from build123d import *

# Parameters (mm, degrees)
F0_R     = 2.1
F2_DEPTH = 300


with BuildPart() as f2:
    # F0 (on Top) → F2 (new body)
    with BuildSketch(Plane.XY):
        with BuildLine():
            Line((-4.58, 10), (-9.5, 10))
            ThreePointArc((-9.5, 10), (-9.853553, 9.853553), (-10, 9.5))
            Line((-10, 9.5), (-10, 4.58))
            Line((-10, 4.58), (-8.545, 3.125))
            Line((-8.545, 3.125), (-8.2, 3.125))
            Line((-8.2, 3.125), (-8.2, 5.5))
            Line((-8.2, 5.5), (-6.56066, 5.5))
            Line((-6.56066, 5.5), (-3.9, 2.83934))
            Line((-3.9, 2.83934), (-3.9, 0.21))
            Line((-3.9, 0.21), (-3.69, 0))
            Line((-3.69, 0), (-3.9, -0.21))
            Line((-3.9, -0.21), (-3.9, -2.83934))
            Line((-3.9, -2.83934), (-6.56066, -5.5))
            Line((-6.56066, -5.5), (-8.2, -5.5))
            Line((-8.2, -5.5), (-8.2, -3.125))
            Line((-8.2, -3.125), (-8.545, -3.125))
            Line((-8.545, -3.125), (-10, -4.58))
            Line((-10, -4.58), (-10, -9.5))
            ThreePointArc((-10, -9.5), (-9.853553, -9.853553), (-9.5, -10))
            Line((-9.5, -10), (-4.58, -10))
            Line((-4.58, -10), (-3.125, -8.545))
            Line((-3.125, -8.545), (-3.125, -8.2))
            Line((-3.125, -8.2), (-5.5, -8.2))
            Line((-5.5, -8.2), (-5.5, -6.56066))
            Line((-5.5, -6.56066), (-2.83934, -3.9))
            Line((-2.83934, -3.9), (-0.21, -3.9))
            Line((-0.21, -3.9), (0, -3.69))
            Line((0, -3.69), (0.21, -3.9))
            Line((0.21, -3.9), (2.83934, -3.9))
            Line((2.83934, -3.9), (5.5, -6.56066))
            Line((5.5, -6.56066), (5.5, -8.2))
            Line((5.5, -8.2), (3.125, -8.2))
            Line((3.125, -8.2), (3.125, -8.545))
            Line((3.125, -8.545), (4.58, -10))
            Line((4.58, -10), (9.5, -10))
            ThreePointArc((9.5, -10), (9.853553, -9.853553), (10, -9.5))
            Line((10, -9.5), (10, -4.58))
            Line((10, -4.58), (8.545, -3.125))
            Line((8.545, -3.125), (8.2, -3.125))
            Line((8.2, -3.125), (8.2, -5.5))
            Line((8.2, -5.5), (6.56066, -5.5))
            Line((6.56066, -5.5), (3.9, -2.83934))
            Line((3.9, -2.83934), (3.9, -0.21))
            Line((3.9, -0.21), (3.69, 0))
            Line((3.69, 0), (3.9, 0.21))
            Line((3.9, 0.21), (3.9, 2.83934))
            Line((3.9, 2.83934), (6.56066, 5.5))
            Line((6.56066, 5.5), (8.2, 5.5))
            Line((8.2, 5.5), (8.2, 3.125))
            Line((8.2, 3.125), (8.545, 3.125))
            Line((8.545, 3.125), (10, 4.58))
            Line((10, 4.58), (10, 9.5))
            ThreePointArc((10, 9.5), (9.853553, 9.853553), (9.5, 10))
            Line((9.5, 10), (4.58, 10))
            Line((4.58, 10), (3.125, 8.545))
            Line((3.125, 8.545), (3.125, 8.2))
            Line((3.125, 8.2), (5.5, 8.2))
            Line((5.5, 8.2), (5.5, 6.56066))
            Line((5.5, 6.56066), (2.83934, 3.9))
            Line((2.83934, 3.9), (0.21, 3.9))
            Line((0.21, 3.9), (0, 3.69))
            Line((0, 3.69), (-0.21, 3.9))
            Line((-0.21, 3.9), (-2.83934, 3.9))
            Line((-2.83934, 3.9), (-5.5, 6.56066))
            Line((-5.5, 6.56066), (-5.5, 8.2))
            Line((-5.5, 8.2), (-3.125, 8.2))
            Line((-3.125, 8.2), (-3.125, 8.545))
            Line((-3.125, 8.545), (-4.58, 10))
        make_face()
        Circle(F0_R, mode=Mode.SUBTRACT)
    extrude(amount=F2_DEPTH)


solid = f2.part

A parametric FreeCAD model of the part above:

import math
import FreeCAD as App
import Part
import Sketcher

V = App.Vector

doc = App.newDocument("Part")
body = doc.addObject("PartDesign::Body", "Body")

sketch1 = doc.addObject("Sketcher::SketchObject", "Sketch")
body.addObject(sketch1)
sketch1.AttachmentSupport = (doc.XY_Plane, [""])
sketch1.MapMode = "FlatFace"
sketch1.addGeometry([
    Part.LineSegment(V(-4.58, 10, 0), V(-9.5, 10, 0)),
    Part.ArcOfCircle(Part.Circle(V(-9.499999, 9.499999, 0), V(0, 0, 1), 0.500001), math.radians(90.000153), math.radians(179.999847)),
    Part.LineSegment(V(-10, 9.5, 0), V(-10, 4.58, 0)),
    Part.LineSegment(V(-10, 4.58, 0), V(-8.545, 3.125, 0)),
    Part.LineSegment(V(-8.545, 3.125, 0), V(-8.2, 3.125, 0)),
    Part.LineSegment(V(-8.2, 3.125, 0), V(-8.2, 5.5, 0)),
    Part.LineSegment(V(-8.2, 5.5, 0), V(-6.56066, 5.5, 0)),
    Part.LineSegment(V(-6.56066, 5.5, 0), V(-3.9, 2.83934, 0)),
    Part.LineSegment(V(-3.9, 2.83934, 0), V(-3.9, 0.21, 0)),
    Part.LineSegment(V(-3.9, 0.21, 0), V(-3.69, 0, 0)),
    Part.LineSegment(V(-3.69, 0, 0), V(-3.9, -0.21, 0)),
    Part.LineSegment(V(-3.9, -0.21, 0), V(-3.9, -2.83934, 0)),
    Part.LineSegment(V(-3.9, -2.83934, 0), V(-6.56066, -5.5, 0)),
    Part.LineSegment(V(-6.56066, -5.5, 0), V(-8.2, -5.5, 0)),
    Part.LineSegment(V(-8.2, -5.5, 0), V(-8.2, -3.125, 0)),
    Part.LineSegment(V(-8.2, -3.125, 0), V(-8.545, -3.125, 0)),
    Part.LineSegment(V(-8.545, -3.125, 0), V(-10, -4.58, 0)),
    Part.LineSegment(V(-10, -4.58, 0), V(-10, -9.5, 0)),
    Part.ArcOfCircle(Part.Circle(V(-9.499999, -9.499999, 0), V(0, 0, 1), 0.500001), math.radians(-179.999847), math.radians(-90.000153)),
    Part.LineSegment(V(-9.5, -10, 0), V(-4.58, -10, 0)),
    Part.LineSegment(V(-4.58, -10, 0), V(-3.125, -8.545, 0)),
    Part.LineSegment(V(-3.125, -8.545, 0), V(-3.125, -8.2, 0)),
    Part.LineSegment(V(-3.125, -8.2, 0), V(-5.5, -8.2, 0)),
    Part.LineSegment(V(-5.5, -8.2, 0), V(-5.5, -6.56066, 0)),
    Part.LineSegment(V(-5.5, -6.56066, 0), V(-2.83934, -3.9, 0)),
    Part.LineSegment(V(-2.83934, -3.9, 0), V(-0.21, -3.9, 0)),
    Part.LineSegment(V(-0.21, -3.9, 0), V(0, -3.69, 0)),
    Part.LineSegment(V(0, -3.69, 0), V(0.21, -3.9, 0)),
    Part.LineSegment(V(0.21, -3.9, 0), V(2.83934, -3.9, 0)),
    Part.LineSegment(V(2.83934, -3.9, 0), V(5.5, -6.56066, 0)),
    Part.LineSegment(V(5.5, -6.56066, 0), V(5.5, -8.2, 0)),
    Part.LineSegment(V(5.5, -8.2, 0), V(3.125, -8.2, 0)),
    Part.LineSegment(V(3.125, -8.2, 0), V(3.125, -8.545, 0)),
    Part.LineSegment(V(3.125, -8.545, 0), V(4.58, -10, 0)),
    Part.LineSegment(V(4.58, -10, 0), V(9.5, -10, 0)),
    Part.ArcOfCircle(Part.Circle(V(9.499999, -9.499999, 0), V(0, 0, 1), 0.500001), math.radians(-89.999847), math.radians(-0.000153)),
    Part.LineSegment(V(10, -9.5, 0), V(10, -4.58, 0)),
    Part.LineSegment(V(10, -4.58, 0), V(8.545, -3.125, 0)),
    Part.LineSegment(V(8.545, -3.125, 0), V(8.2, -3.125, 0)),
    Part.LineSegment(V(8.2, -3.125, 0), V(8.2, -5.5, 0)),
    Part.LineSegment(V(8.2, -5.5, 0), V(6.56066, -5.5, 0)),
    Part.LineSegment(V(6.56066, -5.5, 0), V(3.9, -2.83934, 0)),
    Part.LineSegment(V(3.9, -2.83934, 0), V(3.9, -0.21, 0)),
    Part.LineSegment(V(3.9, -0.21, 0), V(3.69, 0, 0)),
    Part.LineSegment(V(3.69, 0, 0), V(3.9, 0.21, 0)),
    Part.LineSegment(V(3.9, 0.21, 0), V(3.9, 2.83934, 0)),
    Part.LineSegment(V(3.9, 2.83934, 0), V(6.56066, 5.5, 0)),
    Part.LineSegment(V(6.56066, 5.5, 0), V(8.2, 5.5, 0)),
    Part.LineSegment(V(8.2, 5.5, 0), V(8.2, 3.125, 0)),
    Part.LineSegment(V(8.2, 3.125, 0), V(8.545, 3.125, 0)),
    Part.LineSegment(V(8.545, 3.125, 0), V(10, 4.58, 0)),
    Part.LineSegment(V(10, 4.58, 0), V(10, 9.5, 0)),
    Part.ArcOfCircle(Part.Circle(V(9.499999, 9.499999, 0), V(0, 0, 1), 0.500001), math.radians(0.000153), math.radians(89.999847)),
    Part.LineSegment(V(9.5, 10, 0), V(4.58, 10, 0)),
    Part.LineSegment(V(4.58, 10, 0), V(3.125, 8.545, 0)),
    Part.LineSegment(V(3.125, 8.545, 0), V(3.125, 8.2, 0)),
    Part.LineSegment(V(3.125, 8.2, 0), V(5.5, 8.2, 0)),
    Part.LineSegment(V(5.5, 8.2, 0), V(5.5, 6.56066, 0)),
    Part.LineSegment(V(5.5, 6.56066, 0), V(2.83934, 3.9, 0)),
    Part.LineSegment(V(2.83934, 3.9, 0), V(0.21, 3.9, 0)),
    Part.LineSegment(V(0.21, 3.9, 0), V(0, 3.69, 0)),
    Part.LineSegment(V(0, 3.69, 0), V(-0.21, 3.9, 0)),
    Part.LineSegment(V(-0.21, 3.9, 0), V(-2.83934, 3.9, 0)),
    Part.LineSegment(V(-2.83934, 3.9, 0), V(-5.5, 6.56066, 0)),
    Part.LineSegment(V(-5.5, 6.56066, 0), V(-5.5, 8.2, 0)),
    Part.LineSegment(V(-5.5, 8.2, 0), V(-3.125, 8.2, 0)),
    Part.LineSegment(V(-3.125, 8.2, 0), V(-3.125, 8.545, 0)),
    Part.LineSegment(V(-3.125, 8.545, 0), V(-4.58, 10, 0)),
    Part.Circle(V(0, 0, 0), V(0, 0, 1), 2.1),
], False)
sketch1.addConstraint([
    Sketcher.Constraint("Coincident", 0, 2, 1, 1),
    Sketcher.Constraint("Coincident", 1, 2, 2, 1),
    Sketcher.Constraint("Coincident", 2, 2, 3, 1),
    Sketcher.Constraint("Coincident", 3, 2, 4, 1),
    Sketcher.Constraint("Coincident", 4, 2, 5, 1),
    Sketcher.Constraint("Coincident", 5, 2, 6, 1),
    Sketcher.Constraint("Coincident", 6, 2, 7, 1),
    Sketcher.Constraint("Coincident", 7, 2, 8, 1),
    Sketcher.Constraint("Coincident", 8, 2, 9, 1),
    Sketcher.Constraint("Coincident", 9, 2, 10, 1),
    Sketcher.Constraint("Coincident", 10, 2, 11, 1),
    Sketcher.Constraint("Coincident", 11, 2, 12, 1),
    Sketcher.Constraint("Coincident", 12, 2, 13, 1),
    Sketcher.Constraint("Coincident", 13, 2, 14, 1),
    Sketcher.Constraint("Coincident", 14, 2, 15, 1),
    Sketcher.Constraint("Coincident", 15, 2, 16, 1),
    Sketcher.Constraint("Coincident", 16, 2, 17, 1),
    Sketcher.Constraint("Coincident", 17, 2, 18, 1),
    Sketcher.Constraint("Coincident", 18, 2, 19, 1),
    Sketcher.Constraint("Coincident", 19, 2, 20, 1),
    Sketcher.Constraint("Coincident", 20, 2, 21, 1),
    Sketcher.Constraint("Coincident", 21, 2, 22, 1),
    Sketcher.Constraint("Coincident", 22, 2, 23, 1),
    Sketcher.Constraint("Coincident", 23, 2, 24, 1),
    Sketcher.Constraint("Coincident", 24, 2, 25, 1),
    Sketcher.Constraint("Coincident", 25, 2, 26, 1),
    Sketcher.Constraint("Coincident", 26, 2, 27, 1),
    Sketcher.Constraint("Coincident", 27, 2, 28, 1),
    Sketcher.Constraint("Coincident", 28, 2, 29, 1),
    Sketcher.Constraint("Coincident", 29, 2, 30, 1),
    Sketcher.Constraint("Coincident", 30, 2, 31, 1),
    Sketcher.Constraint("Coincident", 31, 2, 32, 1),
    Sketcher.Constraint("Coincident", 32, 2, 33, 1),
    Sketcher.Constraint("Coincident", 33, 2, 34, 1),
    Sketcher.Constraint("Coincident", 34, 2, 35, 1),
    Sketcher.Constraint("Coincident", 35, 2, 36, 1),
    Sketcher.Constraint("Coincident", 36, 2, 37, 1),
    Sketcher.Constraint("Coincident", 37, 2, 38, 1),
    Sketcher.Constraint("Coincident", 38, 2, 39, 1),
    Sketcher.Constraint("Coincident", 39, 2, 40, 1),
    Sketcher.Constraint("Coincident", 40, 2, 41, 1),
    Sketcher.Constraint("Coincident", 41, 2, 42, 1),
    Sketcher.Constraint("Coincident", 42, 2, 43, 1),
    Sketcher.Constraint("Coincident", 43, 2, 44, 1),
    Sketcher.Constraint("Coincident", 44, 2, 45, 1),
    Sketcher.Constraint("Coincident", 45, 2, 46, 1),
    Sketcher.Constraint("Coincident", 46, 2, 47, 1),
    Sketcher.Constraint("Coincident", 47, 2, 48, 1),
    Sketcher.Constraint("Coincident", 48, 2, 49, 1),
    Sketcher.Constraint("Coincident", 49, 2, 50, 1),
    Sketcher.Constraint("Coincident", 50, 2, 51, 1),
    Sketcher.Constraint("Coincident", 51, 2, 52, 1),
    Sketcher.Constraint("Coincident", 52, 2, 53, 1),
    Sketcher.Constraint("Coincident", 53, 2, 54, 1),
    Sketcher.Constraint("Coincident", 54, 2, 55, 1),
    Sketcher.Constraint("Coincident", 55, 2, 56, 1),
    Sketcher.Constraint("Coincident", 56, 2, 57, 1),
    Sketcher.Constraint("Coincident", 57, 2, 58, 1),
    Sketcher.Constraint("Coincident", 58, 2, 59, 1),
    Sketcher.Constraint("Coincident", 59, 2, 60, 1),
    Sketcher.Constraint("Coincident", 60, 2, 61, 1),
    Sketcher.Constraint("Coincident", 61, 2, 62, 1),
    Sketcher.Constraint("Coincident", 62, 2, 63, 1),
    Sketcher.Constraint("Coincident", 63, 2, 64, 1),
    Sketcher.Constraint("Coincident", 64, 2, 65, 1),
    Sketcher.Constraint("Coincident", 65, 2, 66, 1),
    Sketcher.Constraint("Coincident", 66, 2, 67, 1),
    Sketcher.Constraint("Coincident", 67, 2, 0, 1),
    Sketcher.Constraint("Horizontal", 0),
    Sketcher.Constraint("Vertical", 2),
    Sketcher.Constraint("Horizontal", 4),
    Sketcher.Constraint("Vertical", 5),
    Sketcher.Constraint("Horizontal", 6),
    Sketcher.Constraint("Vertical", 8),
    Sketcher.Constraint("Vertical", 11),
    Sketcher.Constraint("Horizontal", 13),
    Sketcher.Constraint("Vertical", 14),
    Sketcher.Constraint("Horizontal", 15),
    Sketcher.Constraint("Vertical", 17),
    Sketcher.Constraint("Horizontal", 19),
    Sketcher.Constraint("Vertical", 21),
    Sketcher.Constraint("Horizontal", 22),
    Sketcher.Constraint("Vertical", 23),
    Sketcher.Constraint("Horizontal", 25),
    Sketcher.Constraint("Horizontal", 28),
    Sketcher.Constraint("Vertical", 30),
    Sketcher.Constraint("Horizontal", 31),
    Sketcher.Constraint("Vertical", 32),
    Sketcher.Constraint("Horizontal", 34),
    Sketcher.Constraint("Vertical", 36),
    Sketcher.Constraint("Horizontal", 38),
    Sketcher.Constraint("Vertical", 39),
    Sketcher.Constraint("Horizontal", 40),
    Sketcher.Constraint("Vertical", 42),
    Sketcher.Constraint("Vertical", 45),
    Sketcher.Constraint("Horizontal", 47),
    Sketcher.Constraint("Vertical", 48),
    Sketcher.Constraint("Horizontal", 49),
    Sketcher.Constraint("Vertical", 51),
    Sketcher.Constraint("Horizontal", 53),
    Sketcher.Constraint("Vertical", 55),
    Sketcher.Constraint("Horizontal", 56),
    Sketcher.Constraint("Vertical", 57),
    Sketcher.Constraint("Horizontal", 59),
    Sketcher.Constraint("Horizontal", 62),
    Sketcher.Constraint("Vertical", 64),
    Sketcher.Constraint("Horizontal", 65),
    Sketcher.Constraint("Vertical", 66),
    Sketcher.Constraint("Coincident", 68, 3, -1, 1),
    Sketcher.Constraint("Equal", 1, 18),
    Sketcher.Constraint("Equal", 18, 35),
    Sketcher.Constraint("Equal", 35, 52),
    Sketcher.Constraint("Symmetric", 1, 3, 35, 3, -1, 1),
    Sketcher.Constraint("Symmetric", 18, 3, 52, 3, -1, 1),
    Sketcher.Constraint("Symmetric", 3, 2, 37, 2, -1, 1),
    Sketcher.Constraint("Symmetric", 5, 2, 39, 2, -1, 1),
    Sketcher.Constraint("Symmetric", 7, 2, 41, 2, -1, 1),
    Sketcher.Constraint("Symmetric", 9, 2, 43, 2, -1, 1),
    Sketcher.Constraint("Symmetric", 10, 2, 44, 2, -1, 1),
    Sketcher.Constraint("Symmetric", 12, 2, 46, 2, -1, 1),
    Sketcher.Constraint("Symmetric", 14, 2, 48, 2, -1, 1),
    Sketcher.Constraint("Symmetric", 20, 2, 54, 2, -1, 1),
    Sketcher.Constraint("Symmetric", 22, 2, 56, 2, -1, 1),
    Sketcher.Constraint("Symmetric", 24, 2, 58, 2, -1, 1),
    Sketcher.Constraint("Symmetric", 26, 2, 60, 2, -1, 1),
    Sketcher.Constraint("Symmetric", 27, 2, 61, 2, -1, 1),
    Sketcher.Constraint("Symmetric", 29, 2, 63, 2, -1, 1),
    Sketcher.Constraint("Symmetric", 31, 2, 65, 2, -1, 1),
    Sketcher.Constraint("Symmetric", 18, 3, 35, 3, -2),
    Sketcher.Constraint("Symmetric", 25, 2, 27, 2, -2),
    Sketcher.Constraint("Symmetric", 23, 2, 29, 2, -2),
    Sketcher.Constraint("Symmetric", 21, 2, 31, 2, -2),
    Sketcher.Constraint("Symmetric", 15, 2, 37, 2, -2),
    Sketcher.Constraint("Symmetric", 13, 2, 39, 2, -2),
    Sketcher.Constraint("Symmetric", 11, 2, 41, 2, -2),
    Sketcher.Constraint("PointOnObject", 9, 2, -1),
    Sketcher.Constraint("PointOnObject", 26, 2, -2),
    Sketcher.Constraint("Parallel", 3, 7),
    Sketcher.Constraint("Parallel", 7, 9),
    Sketcher.Constraint("Perpendicular", 9, 10),
    Sketcher.Constraint("Parallel", 10, 12),
    Sketcher.Constraint("Parallel", 12, 16),
    Sketcher.Constraint("Parallel", 16, 20),
    Sketcher.Constraint("Parallel", 20, 24),
    Sketcher.Constraint("Parallel", 24, 26),
    Sketcher.Constraint("Perpendicular", 26, 27),
    Sketcher.Constraint("Parallel", 27, 29),
    Sketcher.Constraint("Parallel", 29, 33),
    Sketcher.Constraint("Parallel", 33, 37),
    Sketcher.Constraint("Parallel", 37, 41),
    Sketcher.Constraint("Parallel", 41, 43),
    Sketcher.Constraint("Parallel", 44, 46),
    Sketcher.Constraint("Parallel", 46, 50),
    Sketcher.Constraint("Parallel", 50, 54),
    Sketcher.Constraint("Parallel", 54, 58),
    Sketcher.Constraint("Parallel", 58, 60),
    Sketcher.Constraint("Parallel", 61, 63),
    Sketcher.Constraint("Parallel", 63, 67),
    Sketcher.Constraint("Horizontal", 52, 3, 1, 2),
    Sketcher.Constraint("Horizontal", 35, 3, 17, 2),
    Sketcher.Constraint("Horizontal", 20, 2, 32, 2),
    Sketcher.Constraint("Horizontal", 17, 2, 35, 2),
    Sketcher.Constraint("Horizontal", 2, 2, 50, 2),
    Sketcher.Constraint("Horizontal", 1, 2, 51, 2),
    Sketcher.Constraint("Horizontal", 54, 2, 66, 2),
    Sketcher.Constraint("Vertical", 18, 3, 0, 2),
    Sketcher.Constraint("Vertical", 0, 2, 18, 2),
    Sketcher.Constraint("Vertical", 52, 3, 34, 2),
    Sketcher.Constraint("Vertical", 34, 2, 52, 2),
    Sketcher.Constraint("Equal", 53, 2),
    Sketcher.Constraint("Equal", 65, 5),
    Sketcher.Constraint("Equal", 62, 8),
    Sketcher.Constraint("Equal", 49, 21),
    Sketcher.Constraint("Equal", 47, 23),
    Sketcher.Constraint("Equal", 16, 20),
    Sketcher.Constraint("Equal", 12, 24),
    Sketcher.Constraint("Equal", 10, 26),
    Sketcher.Constraint("Diameter", 68, 4.2),
    Sketcher.Constraint("Radius", 1, 0.500001),
    Sketcher.Constraint("DistanceY", -1, 1, 0, 2, 10.0),
    Sketcher.Constraint("DistanceX", 0, 2, 0, 1, 4.92),
    Sketcher.Constraint("DistanceX", 4, 2, -1, 1, 8.2),
    Sketcher.Constraint("DistanceY", -1, 1, 5, 2, 5.5),
    Sketcher.Constraint("DistanceX", 7, 2, -1, 1, 3.9),
    Sketcher.Constraint("DistanceX", 4, 1, 4, 2, 0.345),
    Sketcher.Constraint("DistanceY", -1, 1, 8, 2, 0.21),
    Sketcher.Constraint("DistanceX", 6, 1, 6, 2, 1.63934),
])
pad1 = doc.addObject("PartDesign::Pad", "Pad")
body.addObject(pad1)
pad1.Profile = sketch1
pad1.Length = 300

doc.recompute()
